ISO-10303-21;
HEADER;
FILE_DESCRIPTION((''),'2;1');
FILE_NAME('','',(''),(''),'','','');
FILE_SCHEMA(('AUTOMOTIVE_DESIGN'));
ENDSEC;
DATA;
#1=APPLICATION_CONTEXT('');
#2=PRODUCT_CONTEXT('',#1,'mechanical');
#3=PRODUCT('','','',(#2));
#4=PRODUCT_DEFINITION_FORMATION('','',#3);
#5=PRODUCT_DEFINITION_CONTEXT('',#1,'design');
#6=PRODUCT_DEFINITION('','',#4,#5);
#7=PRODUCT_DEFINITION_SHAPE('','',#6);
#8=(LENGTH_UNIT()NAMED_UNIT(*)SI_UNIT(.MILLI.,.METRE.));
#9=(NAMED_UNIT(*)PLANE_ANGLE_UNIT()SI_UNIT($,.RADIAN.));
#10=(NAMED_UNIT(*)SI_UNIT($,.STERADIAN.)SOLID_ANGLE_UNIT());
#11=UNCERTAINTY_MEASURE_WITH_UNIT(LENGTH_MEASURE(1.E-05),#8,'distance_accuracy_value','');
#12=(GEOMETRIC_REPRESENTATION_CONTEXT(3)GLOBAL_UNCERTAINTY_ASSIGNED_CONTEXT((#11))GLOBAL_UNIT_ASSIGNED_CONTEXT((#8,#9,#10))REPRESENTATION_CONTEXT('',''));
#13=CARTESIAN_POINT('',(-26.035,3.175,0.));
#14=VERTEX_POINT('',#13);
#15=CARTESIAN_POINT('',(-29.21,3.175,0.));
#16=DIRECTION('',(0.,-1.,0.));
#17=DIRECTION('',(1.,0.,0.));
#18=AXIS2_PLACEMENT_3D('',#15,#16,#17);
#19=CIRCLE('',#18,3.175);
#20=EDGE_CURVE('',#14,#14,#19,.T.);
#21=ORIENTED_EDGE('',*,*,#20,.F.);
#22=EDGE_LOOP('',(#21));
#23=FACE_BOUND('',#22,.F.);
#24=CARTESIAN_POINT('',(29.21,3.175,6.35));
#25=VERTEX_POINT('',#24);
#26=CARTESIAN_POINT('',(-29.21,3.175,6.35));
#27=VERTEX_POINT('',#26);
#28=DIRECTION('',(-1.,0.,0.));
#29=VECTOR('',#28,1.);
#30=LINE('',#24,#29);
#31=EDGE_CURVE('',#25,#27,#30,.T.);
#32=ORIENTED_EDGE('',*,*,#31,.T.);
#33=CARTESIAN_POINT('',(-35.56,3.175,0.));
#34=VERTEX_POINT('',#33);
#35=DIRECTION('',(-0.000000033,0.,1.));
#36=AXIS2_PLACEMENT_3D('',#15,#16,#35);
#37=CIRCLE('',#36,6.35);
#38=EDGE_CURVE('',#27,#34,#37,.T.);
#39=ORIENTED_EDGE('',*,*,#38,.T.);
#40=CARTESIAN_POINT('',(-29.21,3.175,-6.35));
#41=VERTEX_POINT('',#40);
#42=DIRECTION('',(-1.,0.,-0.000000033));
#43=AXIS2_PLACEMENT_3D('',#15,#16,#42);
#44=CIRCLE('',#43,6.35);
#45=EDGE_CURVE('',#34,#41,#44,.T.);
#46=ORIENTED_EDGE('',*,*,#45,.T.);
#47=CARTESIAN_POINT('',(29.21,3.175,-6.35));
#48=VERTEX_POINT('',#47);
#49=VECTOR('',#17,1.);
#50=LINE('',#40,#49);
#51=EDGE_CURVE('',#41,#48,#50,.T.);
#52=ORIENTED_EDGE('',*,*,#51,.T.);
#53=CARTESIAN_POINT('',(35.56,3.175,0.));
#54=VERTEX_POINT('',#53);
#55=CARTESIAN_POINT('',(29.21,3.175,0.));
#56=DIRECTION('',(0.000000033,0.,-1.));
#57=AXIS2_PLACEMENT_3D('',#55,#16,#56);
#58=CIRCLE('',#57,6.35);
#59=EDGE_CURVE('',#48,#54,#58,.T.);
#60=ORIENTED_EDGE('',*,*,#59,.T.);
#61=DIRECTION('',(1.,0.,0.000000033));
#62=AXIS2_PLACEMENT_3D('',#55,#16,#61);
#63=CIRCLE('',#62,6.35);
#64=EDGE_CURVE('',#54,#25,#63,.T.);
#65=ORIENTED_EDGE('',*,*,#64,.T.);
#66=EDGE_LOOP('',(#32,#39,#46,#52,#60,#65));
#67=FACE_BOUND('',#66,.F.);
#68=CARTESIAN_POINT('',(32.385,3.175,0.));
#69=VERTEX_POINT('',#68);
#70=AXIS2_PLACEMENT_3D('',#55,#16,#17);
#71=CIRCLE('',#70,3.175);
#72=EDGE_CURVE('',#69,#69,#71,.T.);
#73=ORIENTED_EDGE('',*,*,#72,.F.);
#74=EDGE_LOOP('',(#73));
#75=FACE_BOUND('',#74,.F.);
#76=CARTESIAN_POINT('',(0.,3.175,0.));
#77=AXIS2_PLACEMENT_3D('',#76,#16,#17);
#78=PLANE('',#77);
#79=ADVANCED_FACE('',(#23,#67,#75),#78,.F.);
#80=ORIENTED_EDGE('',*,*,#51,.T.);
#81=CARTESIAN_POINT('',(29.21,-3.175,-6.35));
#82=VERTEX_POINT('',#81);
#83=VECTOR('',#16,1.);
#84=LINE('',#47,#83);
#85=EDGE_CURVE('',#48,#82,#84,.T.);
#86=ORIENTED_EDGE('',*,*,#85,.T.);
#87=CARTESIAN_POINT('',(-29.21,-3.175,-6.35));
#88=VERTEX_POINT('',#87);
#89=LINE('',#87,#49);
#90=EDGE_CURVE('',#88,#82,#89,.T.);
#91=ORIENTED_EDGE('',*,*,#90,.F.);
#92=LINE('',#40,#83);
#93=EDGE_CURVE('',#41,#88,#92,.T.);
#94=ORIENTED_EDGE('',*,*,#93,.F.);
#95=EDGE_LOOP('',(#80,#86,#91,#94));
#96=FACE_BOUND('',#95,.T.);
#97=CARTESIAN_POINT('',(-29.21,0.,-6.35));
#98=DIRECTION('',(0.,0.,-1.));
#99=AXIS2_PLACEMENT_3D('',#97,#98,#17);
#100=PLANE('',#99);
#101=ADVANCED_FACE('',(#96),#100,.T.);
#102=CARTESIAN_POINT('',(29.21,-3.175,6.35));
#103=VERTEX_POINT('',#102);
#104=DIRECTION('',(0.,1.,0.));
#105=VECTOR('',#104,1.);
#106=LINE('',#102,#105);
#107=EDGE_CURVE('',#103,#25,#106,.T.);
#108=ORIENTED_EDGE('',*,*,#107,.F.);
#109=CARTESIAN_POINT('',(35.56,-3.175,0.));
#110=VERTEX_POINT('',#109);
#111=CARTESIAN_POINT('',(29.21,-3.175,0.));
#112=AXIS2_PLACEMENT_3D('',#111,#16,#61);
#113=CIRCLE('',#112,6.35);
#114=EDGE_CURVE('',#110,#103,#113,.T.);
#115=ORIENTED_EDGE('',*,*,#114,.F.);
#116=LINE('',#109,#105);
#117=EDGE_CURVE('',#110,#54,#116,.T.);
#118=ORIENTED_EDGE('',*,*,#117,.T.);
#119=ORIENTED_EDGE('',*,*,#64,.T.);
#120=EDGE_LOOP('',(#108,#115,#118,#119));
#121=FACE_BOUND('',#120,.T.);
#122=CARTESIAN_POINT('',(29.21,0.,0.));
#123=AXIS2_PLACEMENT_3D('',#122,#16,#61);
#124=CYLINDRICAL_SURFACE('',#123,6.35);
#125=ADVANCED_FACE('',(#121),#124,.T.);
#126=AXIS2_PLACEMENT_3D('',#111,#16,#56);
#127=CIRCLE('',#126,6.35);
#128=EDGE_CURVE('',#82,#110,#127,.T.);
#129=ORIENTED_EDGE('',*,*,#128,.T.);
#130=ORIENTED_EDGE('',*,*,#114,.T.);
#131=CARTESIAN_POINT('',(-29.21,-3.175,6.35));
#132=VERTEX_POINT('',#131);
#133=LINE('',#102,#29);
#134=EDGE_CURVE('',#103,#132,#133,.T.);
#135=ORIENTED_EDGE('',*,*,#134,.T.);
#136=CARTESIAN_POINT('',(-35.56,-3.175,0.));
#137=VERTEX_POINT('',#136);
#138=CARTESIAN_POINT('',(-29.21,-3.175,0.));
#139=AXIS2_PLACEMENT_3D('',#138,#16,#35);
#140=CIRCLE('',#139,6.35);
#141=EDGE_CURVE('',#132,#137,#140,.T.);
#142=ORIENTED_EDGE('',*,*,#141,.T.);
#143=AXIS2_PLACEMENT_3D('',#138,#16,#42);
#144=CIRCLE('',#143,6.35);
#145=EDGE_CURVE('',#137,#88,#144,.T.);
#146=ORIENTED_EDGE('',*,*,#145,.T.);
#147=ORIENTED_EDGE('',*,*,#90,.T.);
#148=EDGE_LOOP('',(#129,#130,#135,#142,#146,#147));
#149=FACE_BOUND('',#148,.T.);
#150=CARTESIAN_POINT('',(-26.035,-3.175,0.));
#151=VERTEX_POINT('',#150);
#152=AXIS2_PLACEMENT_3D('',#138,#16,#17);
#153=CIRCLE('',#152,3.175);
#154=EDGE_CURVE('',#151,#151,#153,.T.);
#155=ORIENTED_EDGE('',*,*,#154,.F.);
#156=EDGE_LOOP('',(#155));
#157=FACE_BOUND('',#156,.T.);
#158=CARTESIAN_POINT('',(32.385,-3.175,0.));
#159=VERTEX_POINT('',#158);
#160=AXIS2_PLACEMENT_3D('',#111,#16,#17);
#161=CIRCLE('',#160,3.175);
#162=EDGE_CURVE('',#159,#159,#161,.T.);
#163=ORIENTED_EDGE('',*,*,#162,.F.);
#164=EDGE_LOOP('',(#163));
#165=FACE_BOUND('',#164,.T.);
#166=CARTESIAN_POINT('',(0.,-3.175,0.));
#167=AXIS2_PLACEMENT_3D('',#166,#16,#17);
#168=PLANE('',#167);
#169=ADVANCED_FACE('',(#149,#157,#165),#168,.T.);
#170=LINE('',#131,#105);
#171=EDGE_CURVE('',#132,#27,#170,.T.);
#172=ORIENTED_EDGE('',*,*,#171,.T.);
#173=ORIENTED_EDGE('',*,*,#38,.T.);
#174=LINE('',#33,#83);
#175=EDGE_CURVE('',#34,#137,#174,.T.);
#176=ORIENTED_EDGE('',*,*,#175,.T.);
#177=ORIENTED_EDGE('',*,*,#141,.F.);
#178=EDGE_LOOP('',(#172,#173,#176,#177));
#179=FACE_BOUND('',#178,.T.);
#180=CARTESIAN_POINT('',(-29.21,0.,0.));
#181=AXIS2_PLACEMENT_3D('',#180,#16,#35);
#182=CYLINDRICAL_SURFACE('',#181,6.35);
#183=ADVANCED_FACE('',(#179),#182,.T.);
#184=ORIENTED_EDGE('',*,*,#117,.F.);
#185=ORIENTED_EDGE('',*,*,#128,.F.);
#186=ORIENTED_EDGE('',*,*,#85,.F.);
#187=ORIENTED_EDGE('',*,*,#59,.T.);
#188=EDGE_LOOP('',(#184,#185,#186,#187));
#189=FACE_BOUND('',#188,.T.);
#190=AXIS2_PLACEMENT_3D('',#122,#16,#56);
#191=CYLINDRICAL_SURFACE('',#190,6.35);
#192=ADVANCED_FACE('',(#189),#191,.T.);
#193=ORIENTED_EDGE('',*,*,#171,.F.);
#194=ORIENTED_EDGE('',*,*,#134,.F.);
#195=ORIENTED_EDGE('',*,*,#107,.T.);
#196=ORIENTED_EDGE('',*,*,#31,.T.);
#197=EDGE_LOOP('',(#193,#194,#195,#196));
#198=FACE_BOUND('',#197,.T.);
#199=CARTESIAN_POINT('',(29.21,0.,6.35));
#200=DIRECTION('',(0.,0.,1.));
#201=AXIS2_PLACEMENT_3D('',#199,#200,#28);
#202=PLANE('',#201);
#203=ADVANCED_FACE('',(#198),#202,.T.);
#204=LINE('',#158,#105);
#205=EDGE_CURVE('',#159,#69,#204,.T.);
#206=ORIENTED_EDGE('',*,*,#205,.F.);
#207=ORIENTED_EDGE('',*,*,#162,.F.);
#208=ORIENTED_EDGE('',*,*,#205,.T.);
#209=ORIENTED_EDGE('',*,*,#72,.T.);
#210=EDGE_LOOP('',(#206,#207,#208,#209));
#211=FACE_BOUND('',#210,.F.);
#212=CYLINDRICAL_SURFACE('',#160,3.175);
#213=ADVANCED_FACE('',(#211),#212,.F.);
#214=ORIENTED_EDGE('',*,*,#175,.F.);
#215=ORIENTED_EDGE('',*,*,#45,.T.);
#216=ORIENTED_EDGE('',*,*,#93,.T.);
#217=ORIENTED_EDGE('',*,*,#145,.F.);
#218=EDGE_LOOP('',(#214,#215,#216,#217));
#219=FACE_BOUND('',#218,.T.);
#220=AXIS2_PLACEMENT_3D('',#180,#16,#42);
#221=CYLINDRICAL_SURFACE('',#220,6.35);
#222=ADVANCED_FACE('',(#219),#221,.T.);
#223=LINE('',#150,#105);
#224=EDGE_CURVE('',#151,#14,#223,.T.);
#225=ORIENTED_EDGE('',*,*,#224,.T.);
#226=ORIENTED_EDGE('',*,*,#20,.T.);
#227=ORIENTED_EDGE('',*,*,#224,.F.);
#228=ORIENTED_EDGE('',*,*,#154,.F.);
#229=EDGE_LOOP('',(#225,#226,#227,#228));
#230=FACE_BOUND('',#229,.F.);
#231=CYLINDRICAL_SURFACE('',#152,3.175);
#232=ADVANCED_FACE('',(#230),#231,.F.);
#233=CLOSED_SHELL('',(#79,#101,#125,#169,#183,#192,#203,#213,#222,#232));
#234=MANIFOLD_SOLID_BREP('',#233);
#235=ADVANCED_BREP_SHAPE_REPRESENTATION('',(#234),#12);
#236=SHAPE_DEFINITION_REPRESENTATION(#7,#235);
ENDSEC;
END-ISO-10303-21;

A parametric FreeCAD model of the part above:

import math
import FreeCAD as App
import Part
import Sketcher
from FreeCAD import Vector
Q = App.Units.Quantity

doc = App.newDocument("Part")
body = doc.addObject("PartDesign::Body", "Body")

sketch1 = doc.addObject("Sketcher::SketchObject", "Sketch")
body.addObject(sketch1)
sketch1.AttachmentSupport = (doc.XZ_Plane, [""])
sketch1.MapMode = "FlatFace"
sketch1.addGeometry([
    Part.ArcOfCircle(Part.Circle(Vector(-29, 0, 0), Vector(0, 0, 1), 6), math.radians(90), math.radians(180)),
    Part.ArcOfCircle(Part.Circle(Vector(-29, 0, 0), Vector(0, 0, 1), 6), math.radians(-180), math.radians(-90)),
    Part.LineSegment(Vector(-29, -6, 0), Vector(29, -6, 0)),
    Part.ArcOfCircle(Part.Circle(Vector(29, 0, 0), Vector(0, 0, 1), 6), math.radians(-90), math.radians(0)),
    Part.ArcOfCircle(Part.Circle(Vector(29, 0, 0), Vector(0, 0, 1), 6), math.radians(0), math.radians(90)),
    Part.LineSegment(Vector(29, 6, 0), Vector(-29, 6, 0)),
], False)
sketch1.addConstraint([
    Sketcher.Constraint("Tangent", 0, 2, 1, 1),
    Sketcher.Constraint("Tangent", 1, 2, 2, 1),
    Sketcher.Constraint("Tangent", 2, 2, 3, 1),
    Sketcher.Constraint("Tangent", 3, 2, 4, 1),
    Sketcher.Constraint("Tangent", 4, 2, 5, 1),
    Sketcher.Constraint("Tangent", 5, 2, 0, 1),
    Sketcher.Constraint("Horizontal", 2),
    Sketcher.Constraint("Horizontal", 5),
    Sketcher.Constraint("Equal", 0, 1),
    Sketcher.Constraint("Equal", 1, 3),
    Sketcher.Constraint("Symmetric", 0, 3, 3, 3, -1, 1),
    Sketcher.Constraint("PointOnObject", 0, 2, -1),
    Sketcher.Constraint("PointOnObject", 3, 2, -1),
    Sketcher.Constraint("Radius", 0, Q("0.25 in")),
    Sketcher.Constraint("DistanceX", 2, 1, 2, 2, Q("2.3 in")),
])
pad1 = doc.addObject("PartDesign::Pad", "Pad")
body.addObject(pad1)
pad1.Profile = sketch1
pad1.Length = Q("0.25 in")
pad1.Midplane = True

sketch2 = doc.addObject("Sketcher::SketchObject", "Sketch001")
body.addObject(sketch2)
sketch2.AttachmentSupport = (doc.XZ_Plane, [""])
sketch2.MapMode = "FlatFace"
sketch2.AttachmentOffset = App.Placement(Vector(0, 0, 0.125 * 25.4), App.Rotation())
sketch2.addGeometry([
    Part.Circle(Vector(-29.2, 0, 0), Vector(0, 0, 1), 3.2),
    Part.Circle(Vector(29.2, 0, 0), Vector(0, 0, 1), 3.2),
], False)
sketch2.addConstraint([
    Sketcher.Constraint("Equal", 0, 1),
    Sketcher.Constraint("Symmetric", 0, 3, 1, 3, -1, 1),
    Sketcher.Constraint("PointOnObject", 0, 3, -1),
    Sketcher.Constraint("Diameter", 0, Q("0.25 in")),
    Sketcher.Constraint("DistanceX", 0, 3, 1, 3, Q("2.3 in")),
])
pocket1 = doc.addObject("PartDesign::Pocket", "Pocket")
body.addObject(pocket1)
pocket1.Profile = sketch2
pocket1.Type = "ThroughAll"

doc.recompute()
